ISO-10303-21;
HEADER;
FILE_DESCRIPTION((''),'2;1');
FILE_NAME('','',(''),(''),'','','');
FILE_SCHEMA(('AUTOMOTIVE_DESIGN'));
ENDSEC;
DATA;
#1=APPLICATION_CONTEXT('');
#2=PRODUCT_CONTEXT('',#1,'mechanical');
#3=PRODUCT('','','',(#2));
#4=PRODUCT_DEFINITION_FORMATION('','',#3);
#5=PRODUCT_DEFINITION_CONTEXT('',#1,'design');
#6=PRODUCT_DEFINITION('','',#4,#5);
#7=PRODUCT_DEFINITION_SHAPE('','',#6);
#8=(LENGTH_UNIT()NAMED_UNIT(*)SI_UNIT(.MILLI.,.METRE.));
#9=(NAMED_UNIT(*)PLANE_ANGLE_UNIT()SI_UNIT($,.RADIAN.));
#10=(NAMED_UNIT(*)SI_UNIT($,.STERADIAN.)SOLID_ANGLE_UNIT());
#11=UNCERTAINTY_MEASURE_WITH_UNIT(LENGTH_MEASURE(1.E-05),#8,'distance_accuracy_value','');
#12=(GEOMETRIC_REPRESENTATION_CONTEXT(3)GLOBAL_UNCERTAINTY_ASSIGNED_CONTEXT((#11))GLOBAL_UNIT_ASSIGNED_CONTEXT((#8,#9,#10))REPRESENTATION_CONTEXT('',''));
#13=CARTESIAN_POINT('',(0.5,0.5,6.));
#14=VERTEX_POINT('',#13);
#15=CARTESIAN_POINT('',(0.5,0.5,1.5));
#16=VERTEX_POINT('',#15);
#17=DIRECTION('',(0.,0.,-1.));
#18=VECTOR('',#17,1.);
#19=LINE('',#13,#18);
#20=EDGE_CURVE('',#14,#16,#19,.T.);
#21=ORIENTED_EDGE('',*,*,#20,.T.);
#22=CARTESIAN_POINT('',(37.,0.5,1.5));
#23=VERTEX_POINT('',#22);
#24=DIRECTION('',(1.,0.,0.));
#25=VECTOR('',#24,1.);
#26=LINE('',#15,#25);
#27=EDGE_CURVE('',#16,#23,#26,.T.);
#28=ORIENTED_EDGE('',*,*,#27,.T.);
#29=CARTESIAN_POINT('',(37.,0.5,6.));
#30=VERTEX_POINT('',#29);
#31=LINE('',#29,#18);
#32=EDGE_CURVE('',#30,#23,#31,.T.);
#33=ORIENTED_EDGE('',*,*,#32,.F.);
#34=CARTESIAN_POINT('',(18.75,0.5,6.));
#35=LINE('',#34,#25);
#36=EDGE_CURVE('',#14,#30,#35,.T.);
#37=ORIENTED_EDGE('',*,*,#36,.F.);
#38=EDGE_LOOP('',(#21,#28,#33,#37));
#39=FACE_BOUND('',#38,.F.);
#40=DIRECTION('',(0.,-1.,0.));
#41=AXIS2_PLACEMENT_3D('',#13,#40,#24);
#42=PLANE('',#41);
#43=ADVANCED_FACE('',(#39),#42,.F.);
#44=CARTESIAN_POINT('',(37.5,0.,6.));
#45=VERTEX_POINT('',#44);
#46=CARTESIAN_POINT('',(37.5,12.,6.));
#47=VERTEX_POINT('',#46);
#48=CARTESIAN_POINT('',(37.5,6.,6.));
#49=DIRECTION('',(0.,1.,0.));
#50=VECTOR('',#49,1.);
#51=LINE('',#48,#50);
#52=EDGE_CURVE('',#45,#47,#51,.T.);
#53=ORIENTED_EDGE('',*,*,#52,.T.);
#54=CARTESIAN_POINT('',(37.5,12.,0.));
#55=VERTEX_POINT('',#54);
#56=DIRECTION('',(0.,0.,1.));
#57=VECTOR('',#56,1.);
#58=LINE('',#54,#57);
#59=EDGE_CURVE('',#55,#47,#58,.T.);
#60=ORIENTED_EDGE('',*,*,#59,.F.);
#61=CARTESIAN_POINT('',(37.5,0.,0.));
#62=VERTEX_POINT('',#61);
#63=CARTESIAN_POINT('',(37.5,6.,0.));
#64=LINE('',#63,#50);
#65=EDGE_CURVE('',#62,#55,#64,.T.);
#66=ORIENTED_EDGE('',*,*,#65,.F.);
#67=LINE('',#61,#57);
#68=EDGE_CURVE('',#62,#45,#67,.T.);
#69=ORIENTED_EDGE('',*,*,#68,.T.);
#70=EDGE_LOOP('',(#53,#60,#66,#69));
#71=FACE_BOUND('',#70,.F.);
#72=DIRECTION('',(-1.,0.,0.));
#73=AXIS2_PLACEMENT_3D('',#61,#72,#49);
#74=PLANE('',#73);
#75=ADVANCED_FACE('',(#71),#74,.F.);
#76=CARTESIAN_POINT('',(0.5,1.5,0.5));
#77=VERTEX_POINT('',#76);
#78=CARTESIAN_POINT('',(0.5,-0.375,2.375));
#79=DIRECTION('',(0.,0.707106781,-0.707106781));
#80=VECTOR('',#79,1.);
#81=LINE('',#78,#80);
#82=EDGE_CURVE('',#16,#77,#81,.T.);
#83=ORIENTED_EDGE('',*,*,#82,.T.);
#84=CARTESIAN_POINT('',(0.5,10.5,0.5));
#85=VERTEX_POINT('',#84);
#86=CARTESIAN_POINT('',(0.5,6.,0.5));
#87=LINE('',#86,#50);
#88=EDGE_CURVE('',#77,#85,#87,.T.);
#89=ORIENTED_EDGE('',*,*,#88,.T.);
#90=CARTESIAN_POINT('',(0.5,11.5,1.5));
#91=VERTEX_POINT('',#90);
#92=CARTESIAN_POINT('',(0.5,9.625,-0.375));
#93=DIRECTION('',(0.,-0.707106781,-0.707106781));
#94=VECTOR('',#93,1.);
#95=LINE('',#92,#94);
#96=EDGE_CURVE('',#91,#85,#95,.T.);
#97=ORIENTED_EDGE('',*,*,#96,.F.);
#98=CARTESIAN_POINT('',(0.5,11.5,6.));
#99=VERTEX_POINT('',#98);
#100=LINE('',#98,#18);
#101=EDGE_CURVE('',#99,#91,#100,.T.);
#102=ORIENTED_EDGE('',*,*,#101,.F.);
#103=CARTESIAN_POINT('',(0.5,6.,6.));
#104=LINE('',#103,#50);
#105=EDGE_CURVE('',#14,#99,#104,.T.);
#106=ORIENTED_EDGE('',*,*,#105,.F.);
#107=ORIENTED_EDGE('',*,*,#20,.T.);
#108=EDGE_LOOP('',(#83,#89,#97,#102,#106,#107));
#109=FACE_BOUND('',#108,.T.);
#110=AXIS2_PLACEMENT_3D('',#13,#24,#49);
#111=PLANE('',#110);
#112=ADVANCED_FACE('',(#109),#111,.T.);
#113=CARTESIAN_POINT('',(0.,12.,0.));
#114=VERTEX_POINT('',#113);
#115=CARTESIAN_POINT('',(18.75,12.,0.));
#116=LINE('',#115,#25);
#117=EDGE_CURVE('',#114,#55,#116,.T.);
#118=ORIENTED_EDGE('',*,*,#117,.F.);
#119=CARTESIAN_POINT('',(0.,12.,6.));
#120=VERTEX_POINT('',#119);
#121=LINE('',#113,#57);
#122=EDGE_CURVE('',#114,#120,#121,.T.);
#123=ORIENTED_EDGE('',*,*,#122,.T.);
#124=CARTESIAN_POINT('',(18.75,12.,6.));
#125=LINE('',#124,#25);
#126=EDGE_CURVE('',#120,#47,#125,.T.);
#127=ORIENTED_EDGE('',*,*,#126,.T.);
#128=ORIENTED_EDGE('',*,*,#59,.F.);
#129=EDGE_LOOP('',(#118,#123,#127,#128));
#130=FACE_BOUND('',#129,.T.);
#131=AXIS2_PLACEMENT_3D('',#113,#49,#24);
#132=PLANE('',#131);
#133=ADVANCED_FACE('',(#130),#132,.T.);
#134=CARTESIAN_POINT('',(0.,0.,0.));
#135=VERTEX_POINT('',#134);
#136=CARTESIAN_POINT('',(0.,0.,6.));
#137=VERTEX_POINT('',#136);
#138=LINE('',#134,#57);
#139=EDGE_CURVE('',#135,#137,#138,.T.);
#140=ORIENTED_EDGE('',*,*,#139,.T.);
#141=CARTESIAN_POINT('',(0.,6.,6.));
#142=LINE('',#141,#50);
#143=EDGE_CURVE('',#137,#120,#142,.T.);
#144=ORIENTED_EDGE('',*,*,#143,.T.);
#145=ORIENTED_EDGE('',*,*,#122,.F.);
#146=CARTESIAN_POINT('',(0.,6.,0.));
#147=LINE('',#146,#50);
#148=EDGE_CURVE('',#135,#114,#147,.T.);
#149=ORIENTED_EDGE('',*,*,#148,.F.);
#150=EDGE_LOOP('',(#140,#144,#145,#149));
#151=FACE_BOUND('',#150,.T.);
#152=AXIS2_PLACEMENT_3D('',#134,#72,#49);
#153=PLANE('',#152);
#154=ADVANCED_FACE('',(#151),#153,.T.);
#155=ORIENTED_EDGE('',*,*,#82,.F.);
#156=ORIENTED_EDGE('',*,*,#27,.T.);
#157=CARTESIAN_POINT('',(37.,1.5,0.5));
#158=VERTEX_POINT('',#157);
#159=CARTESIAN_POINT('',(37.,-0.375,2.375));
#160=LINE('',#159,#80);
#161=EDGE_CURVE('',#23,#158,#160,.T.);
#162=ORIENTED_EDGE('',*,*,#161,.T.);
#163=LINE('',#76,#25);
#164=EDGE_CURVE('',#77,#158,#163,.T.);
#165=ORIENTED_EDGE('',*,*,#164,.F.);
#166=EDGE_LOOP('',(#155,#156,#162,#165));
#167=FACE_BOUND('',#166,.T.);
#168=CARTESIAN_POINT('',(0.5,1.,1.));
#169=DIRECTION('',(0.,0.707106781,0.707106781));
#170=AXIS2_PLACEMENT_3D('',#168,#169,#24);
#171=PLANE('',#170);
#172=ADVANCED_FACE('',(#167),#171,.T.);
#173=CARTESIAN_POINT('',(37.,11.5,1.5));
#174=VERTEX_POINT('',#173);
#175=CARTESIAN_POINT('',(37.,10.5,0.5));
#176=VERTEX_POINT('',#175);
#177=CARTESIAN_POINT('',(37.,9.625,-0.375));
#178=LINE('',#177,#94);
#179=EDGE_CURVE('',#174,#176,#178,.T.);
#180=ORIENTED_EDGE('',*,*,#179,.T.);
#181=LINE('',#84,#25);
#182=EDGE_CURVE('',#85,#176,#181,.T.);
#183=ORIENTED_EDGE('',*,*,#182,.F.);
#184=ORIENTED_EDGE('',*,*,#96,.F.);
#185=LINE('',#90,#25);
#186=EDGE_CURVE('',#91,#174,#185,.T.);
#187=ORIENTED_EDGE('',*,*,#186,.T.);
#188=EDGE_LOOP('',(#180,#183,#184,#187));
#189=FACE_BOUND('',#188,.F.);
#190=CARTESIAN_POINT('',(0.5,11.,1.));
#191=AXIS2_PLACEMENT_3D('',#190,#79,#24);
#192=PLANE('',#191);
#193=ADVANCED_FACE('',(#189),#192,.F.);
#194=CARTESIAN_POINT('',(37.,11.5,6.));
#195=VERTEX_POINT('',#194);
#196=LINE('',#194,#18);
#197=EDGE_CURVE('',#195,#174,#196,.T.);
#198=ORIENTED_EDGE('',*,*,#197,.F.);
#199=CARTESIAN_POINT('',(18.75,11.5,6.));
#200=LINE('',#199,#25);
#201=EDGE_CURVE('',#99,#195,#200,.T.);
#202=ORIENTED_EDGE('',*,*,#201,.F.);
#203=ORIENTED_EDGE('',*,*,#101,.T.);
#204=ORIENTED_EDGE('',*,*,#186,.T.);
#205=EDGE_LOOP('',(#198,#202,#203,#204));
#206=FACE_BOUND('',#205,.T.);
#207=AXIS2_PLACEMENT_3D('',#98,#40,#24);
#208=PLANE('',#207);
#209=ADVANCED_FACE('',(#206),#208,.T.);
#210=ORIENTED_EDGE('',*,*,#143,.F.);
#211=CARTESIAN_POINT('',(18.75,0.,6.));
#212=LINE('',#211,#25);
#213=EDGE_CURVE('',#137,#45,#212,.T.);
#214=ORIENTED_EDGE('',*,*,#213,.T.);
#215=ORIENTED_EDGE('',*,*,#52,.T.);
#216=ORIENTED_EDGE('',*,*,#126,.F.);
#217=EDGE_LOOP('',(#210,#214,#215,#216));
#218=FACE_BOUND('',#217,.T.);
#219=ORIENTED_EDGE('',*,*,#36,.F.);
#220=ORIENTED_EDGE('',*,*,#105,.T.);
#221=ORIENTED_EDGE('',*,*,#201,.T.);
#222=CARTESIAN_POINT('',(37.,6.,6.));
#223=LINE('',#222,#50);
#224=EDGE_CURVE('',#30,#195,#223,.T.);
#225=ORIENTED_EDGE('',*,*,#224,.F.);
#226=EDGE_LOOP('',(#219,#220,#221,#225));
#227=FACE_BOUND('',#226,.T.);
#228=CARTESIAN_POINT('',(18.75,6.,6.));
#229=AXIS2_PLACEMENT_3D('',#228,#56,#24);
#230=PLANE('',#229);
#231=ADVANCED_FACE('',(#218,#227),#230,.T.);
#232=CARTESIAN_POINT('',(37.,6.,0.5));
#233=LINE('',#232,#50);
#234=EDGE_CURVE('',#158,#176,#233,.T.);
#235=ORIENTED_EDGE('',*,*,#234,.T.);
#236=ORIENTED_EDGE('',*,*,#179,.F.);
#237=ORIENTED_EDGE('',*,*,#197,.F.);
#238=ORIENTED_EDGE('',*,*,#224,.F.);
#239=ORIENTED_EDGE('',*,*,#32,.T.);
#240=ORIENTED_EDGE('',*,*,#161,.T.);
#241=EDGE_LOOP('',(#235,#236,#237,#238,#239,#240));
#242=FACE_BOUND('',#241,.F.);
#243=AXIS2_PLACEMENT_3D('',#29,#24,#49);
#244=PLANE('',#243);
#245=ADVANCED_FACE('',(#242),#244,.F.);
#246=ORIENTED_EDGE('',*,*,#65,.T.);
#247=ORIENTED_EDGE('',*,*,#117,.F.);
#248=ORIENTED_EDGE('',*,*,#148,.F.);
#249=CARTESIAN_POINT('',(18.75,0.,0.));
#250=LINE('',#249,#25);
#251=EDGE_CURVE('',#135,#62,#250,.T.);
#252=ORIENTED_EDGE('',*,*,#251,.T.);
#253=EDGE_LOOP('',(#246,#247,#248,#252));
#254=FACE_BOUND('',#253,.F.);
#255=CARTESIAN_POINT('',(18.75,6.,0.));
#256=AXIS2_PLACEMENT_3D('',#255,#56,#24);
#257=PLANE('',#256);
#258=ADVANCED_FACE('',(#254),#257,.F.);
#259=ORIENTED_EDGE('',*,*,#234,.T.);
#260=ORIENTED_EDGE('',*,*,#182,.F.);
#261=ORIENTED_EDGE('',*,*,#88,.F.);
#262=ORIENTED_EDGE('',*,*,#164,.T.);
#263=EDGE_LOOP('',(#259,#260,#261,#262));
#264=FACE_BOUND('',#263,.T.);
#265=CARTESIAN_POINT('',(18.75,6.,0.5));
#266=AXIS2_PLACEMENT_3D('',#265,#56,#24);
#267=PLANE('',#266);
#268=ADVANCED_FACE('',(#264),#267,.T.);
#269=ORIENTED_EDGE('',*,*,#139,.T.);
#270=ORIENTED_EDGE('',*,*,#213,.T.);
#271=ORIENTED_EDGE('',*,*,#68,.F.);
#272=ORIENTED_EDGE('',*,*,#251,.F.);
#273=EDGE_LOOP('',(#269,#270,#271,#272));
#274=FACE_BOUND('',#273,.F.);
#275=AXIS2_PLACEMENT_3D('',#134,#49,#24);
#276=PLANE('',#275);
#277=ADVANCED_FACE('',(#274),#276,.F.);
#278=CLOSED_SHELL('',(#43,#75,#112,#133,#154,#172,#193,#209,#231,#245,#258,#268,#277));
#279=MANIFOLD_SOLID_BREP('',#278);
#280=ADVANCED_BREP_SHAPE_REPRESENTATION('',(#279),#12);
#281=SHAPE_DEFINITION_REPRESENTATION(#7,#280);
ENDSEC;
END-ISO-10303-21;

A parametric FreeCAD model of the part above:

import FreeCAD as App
import Part
import Sketcher

V = App.Vector


def edges_at(feature, points):
    """Names of the edges that pass closest to the given points."""
    edges = feature.Shape.Edges
    near = lambda p: min(range(len(edges)), key=lambda i: edges[i].distToShape(Part.Vertex(*p))[0])
    return sorted({f"Edge{near(p) + 1}" for p in points})

doc = App.newDocument("Part")
body = doc.addObject("PartDesign::Body", "Body")

# Sketch on XY plane
sketch1 = body.newObject("Sketcher::SketchObject", "Sketch")
sketch1.AttachmentSupport = (doc.getObject("XY_Plane"), [""])
sketch1.MapMode = "FlatFace"
sketch1.addGeometry([
    Part.LineSegment(V(0, 12, 0), V(0, 0, 0)),
    Part.LineSegment(V(0, 0, 0), V(38, 0, 0)),
    Part.LineSegment(V(38, 0, 0), V(38, 12, 0)),
    Part.LineSegment(V(38, 12, 0), V(0, 12, 0)),
], False)
sketch1.addConstraint([
    Sketcher.Constraint("Coincident", 0, 2, 1, 1),
    Sketcher.Constraint("Coincident", 1, 2, 2, 1),
    Sketcher.Constraint("Coincident", 2, 2, 3, 1),
    Sketcher.Constraint("Coincident", 3, 2, 0, 1),
    Sketcher.Constraint("Vertical", 0),
    Sketcher.Constraint("Horizontal", 1),
    Sketcher.Constraint("Vertical", 2),
    Sketcher.Constraint("Horizontal", 3),
    Sketcher.Constraint("Coincident", 0, 2, -1, 1),
    Sketcher.Constraint("DistanceY", 0, 2, 0, 1, 12.0),
    Sketcher.Constraint("DistanceX", 1, 1, 1, 2, 37.5),
])
pad1 = body.newObject("PartDesign::Pad", "Pad")
pad1.Profile = sketch1
pad1.Length = 6

# Sketch on XY plane
sketch2 = body.newObject("Sketcher::SketchObject", "Sketch001")
sketch2.AttachmentSupport = (doc.getObject("XY_Plane"), [""])
sketch2.MapMode = "FlatFace"
sketch2.AttachmentOffset = App.Placement(V(0, 0, 6), App.Rotation())
sketch2.addGeometry([
    Part.LineSegment(V(0, 12, 0), V(0, 0, 0)),
    Part.LineSegment(V(0, 0, 0), V(37, 0, 0)),
    Part.LineSegment(V(37, 0, 0), V(37, 12, 0)),
    Part.LineSegment(V(37, 12, 0), V(0, 12, 0)),
], False)
sketch2.addConstraint([
    Sketcher.Constraint("Coincident", 0, 2, 1, 1),
    Sketcher.Constraint("Coincident", 1, 2, 2, 1),
    Sketcher.Constraint("Coincident", 2, 2, 3, 1),
    Sketcher.Constraint("Coincident", 3, 2, 0, 1),
    Sketcher.Constraint("Vertical", 0),
    Sketcher.Constraint("Horizontal", 1),
    Sketcher.Constraint("Vertical", 2),
    Sketcher.Constraint("Horizontal", 3),
    Sketcher.Constraint("DistanceY", 0, 2, 0, 1, 11.0),
    Sketcher.Constraint("DistanceX", 1, 1, 1, 2, 36.5),
    Sketcher.Constraint("DistanceX", -1, 1, 1, 2, 37.0),
    Sketcher.Constraint("DistanceY", -1, 1, 0, 2, 0.5),
])
pocket1 = body.newObject("PartDesign::Pocket", "Pocket")
pocket1.Profile = sketch2
pocket1.Length = 5.5
doc.recompute()

chamfer = body.newObject("PartDesign::Chamfer", "Chamfer")
chamfer.Base = (pocket1, edges_at(pocket1, [(18.75, 11.5, 0.5), (18.75, 0.5, 0.5)]))
chamfer.Size = 1

doc.recompute()
